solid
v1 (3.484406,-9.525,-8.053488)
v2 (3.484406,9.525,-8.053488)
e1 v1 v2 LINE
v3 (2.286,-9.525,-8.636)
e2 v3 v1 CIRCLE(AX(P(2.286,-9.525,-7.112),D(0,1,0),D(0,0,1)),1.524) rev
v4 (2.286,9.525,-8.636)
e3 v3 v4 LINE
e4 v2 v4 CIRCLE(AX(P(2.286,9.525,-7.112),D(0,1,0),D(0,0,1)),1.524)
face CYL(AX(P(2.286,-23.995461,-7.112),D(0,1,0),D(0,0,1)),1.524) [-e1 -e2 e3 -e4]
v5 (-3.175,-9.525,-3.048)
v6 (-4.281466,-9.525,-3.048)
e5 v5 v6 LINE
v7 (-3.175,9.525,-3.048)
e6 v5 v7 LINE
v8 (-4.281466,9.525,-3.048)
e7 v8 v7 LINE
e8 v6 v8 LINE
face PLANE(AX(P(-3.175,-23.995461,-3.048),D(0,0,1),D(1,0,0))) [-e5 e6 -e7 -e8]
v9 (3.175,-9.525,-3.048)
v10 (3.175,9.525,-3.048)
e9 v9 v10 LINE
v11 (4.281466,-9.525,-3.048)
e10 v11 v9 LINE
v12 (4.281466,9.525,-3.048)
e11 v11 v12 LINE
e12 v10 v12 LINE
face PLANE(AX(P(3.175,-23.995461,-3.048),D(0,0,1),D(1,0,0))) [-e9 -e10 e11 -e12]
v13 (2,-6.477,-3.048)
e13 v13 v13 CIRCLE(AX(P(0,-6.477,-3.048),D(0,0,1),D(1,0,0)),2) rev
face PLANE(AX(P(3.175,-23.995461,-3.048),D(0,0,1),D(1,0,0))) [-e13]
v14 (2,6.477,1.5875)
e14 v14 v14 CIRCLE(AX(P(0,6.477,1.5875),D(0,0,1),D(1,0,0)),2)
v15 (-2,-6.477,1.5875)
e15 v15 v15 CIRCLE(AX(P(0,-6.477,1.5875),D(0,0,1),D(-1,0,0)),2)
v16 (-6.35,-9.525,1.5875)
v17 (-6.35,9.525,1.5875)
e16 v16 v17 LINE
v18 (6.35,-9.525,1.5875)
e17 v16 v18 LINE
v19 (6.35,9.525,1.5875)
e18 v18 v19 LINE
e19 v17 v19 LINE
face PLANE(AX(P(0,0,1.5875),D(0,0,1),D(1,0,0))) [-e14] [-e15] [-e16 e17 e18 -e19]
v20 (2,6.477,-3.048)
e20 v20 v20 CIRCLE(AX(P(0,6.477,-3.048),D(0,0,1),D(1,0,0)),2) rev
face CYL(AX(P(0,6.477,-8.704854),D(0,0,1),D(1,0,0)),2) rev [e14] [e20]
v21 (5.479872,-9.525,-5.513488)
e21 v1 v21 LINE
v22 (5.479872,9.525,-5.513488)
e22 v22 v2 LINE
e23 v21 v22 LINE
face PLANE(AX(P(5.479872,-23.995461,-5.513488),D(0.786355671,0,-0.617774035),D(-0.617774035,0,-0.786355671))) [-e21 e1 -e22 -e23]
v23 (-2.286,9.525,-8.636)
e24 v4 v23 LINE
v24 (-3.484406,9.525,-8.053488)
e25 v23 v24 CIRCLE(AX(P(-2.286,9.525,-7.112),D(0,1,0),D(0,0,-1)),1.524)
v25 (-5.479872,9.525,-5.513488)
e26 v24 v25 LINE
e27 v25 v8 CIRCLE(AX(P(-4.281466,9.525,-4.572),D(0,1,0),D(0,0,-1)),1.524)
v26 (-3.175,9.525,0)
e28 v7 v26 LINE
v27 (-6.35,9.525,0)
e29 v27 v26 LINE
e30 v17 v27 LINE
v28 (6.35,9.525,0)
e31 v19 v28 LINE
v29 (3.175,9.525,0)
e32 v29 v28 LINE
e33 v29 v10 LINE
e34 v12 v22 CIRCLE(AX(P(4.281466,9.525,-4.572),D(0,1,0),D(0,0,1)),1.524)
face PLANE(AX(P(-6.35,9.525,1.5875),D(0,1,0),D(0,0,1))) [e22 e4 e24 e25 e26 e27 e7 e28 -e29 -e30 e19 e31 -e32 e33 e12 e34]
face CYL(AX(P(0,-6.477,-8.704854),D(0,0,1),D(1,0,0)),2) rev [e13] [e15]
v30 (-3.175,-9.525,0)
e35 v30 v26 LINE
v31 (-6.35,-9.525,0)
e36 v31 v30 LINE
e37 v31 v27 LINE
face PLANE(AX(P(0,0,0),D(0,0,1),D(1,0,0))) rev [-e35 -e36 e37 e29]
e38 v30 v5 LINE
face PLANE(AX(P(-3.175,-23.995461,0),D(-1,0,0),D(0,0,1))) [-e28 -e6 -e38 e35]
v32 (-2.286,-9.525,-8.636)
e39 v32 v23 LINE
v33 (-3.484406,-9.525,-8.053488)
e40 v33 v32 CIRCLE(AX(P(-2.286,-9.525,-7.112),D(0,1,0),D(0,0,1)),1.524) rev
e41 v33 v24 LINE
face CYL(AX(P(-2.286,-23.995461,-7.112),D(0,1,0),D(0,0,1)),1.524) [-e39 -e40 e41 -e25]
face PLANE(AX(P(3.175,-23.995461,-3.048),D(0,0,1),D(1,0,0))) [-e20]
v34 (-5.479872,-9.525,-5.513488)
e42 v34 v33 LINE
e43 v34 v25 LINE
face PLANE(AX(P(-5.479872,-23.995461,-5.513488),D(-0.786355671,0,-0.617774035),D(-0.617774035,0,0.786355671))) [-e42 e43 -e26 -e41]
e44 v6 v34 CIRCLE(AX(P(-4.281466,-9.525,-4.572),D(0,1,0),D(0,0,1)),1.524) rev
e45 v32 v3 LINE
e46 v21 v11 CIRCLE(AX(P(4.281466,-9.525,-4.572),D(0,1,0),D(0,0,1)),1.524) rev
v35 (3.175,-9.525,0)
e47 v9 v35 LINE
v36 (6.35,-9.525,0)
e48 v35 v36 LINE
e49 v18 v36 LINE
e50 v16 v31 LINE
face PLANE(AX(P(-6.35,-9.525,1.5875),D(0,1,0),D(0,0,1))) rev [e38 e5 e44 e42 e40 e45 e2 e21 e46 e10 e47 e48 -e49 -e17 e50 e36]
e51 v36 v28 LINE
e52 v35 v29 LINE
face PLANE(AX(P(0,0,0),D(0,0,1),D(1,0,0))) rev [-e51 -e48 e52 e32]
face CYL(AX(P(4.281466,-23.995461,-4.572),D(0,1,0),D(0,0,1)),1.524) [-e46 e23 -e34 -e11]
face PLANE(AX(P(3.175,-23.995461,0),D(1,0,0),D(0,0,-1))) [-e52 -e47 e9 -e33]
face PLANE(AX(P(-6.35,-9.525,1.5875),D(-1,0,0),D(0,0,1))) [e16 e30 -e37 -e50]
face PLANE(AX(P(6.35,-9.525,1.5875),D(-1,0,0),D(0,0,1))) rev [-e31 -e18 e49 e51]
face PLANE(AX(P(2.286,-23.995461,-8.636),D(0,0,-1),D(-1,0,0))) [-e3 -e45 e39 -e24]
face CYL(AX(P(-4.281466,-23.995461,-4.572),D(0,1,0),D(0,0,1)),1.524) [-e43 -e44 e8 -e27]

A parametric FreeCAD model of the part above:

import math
import FreeCAD as App
import Part
import Sketcher

V = App.Vector
Q = App.Units.Quantity


def add_polygon(sketch, points):
    """Adds a closed chain of lines whose ends are joined by coincident constraints."""
    first, n = sketch.GeometryCount, len(points)
    for a, b in zip(points, points[1:] + points[:1]):
        sketch.addGeometry(Part.LineSegment(App.Vector(*a, 0), App.Vector(*b, 0)), False)
    for i in range(n):
        sketch.addConstraint(Sketcher.Constraint("Coincident", first + i, 2, first + (i + 1) % n, 1))

doc = App.newDocument("Part")
body = doc.addObject("PartDesign::Body", "Body")

sketch1 = body.newObject("Sketcher::SketchObject", "Sketch")
sketch1.AttachmentSupport = (doc.getObject("XY_Plane"), [""])
sketch1.MapMode = "FlatFace"
add_polygon(sketch1, [(-6, 10), (-6, -10), (6, -10), (6, 10)])
sketch1.addConstraint([
    Sketcher.Constraint("Vertical", 0),
    Sketcher.Constraint("Horizontal", 1),
    Sketcher.Constraint("Vertical", 2),
    Sketcher.Constraint("Horizontal", 3),
    Sketcher.Constraint("Symmetric", 0, 2, 2, 2, -1, 1),
    Sketcher.Constraint("DistanceX", 1, 1, 1, 2, Q("0.5 in")),
    Sketcher.Constraint("DistanceY", 0, 2, 0, 1, Q("0.75 in")),
])
pad1 = body.newObject("PartDesign::Pad", "Pad")
pad1.Profile = sketch1
pad1.Length = Q("0.0625 in")

sketch2 = body.newObject("Sketcher::SketchObject", "Sketch001")
sketch2.AttachmentSupport = (doc.getObject("XZ_Plane"), [""])
sketch2.MapMode = "FlatFace"
sketch2.AttachmentOffset = App.Placement(V(0, 0, -0.375 * 25.4), App.Rotation())
sketch2.addGeometry([
    Part.LineSegment(V(3.2, 0, 0), V(3.2, -3, 0)),
    Part.LineSegment(V(3.2, -3, 0), V(4.3, -3, 0)),
    Part.ArcOfCircle(Part.Circle(V(4.3, -4.6, 0), V(0, 0, 1), 1.5), math.radians(-38), math.radians(90)),
    Part.LineSegment(V(5.5, -5.5, 0), V(3.5, -8.1, 0)),
    Part.ArcOfCircle(Part.Circle(V(2.3, -7.1, 0), V(0, 0, 1), 1.5), math.radians(-90), math.radians(-38)),
    Part.LineSegment(V(2.3, -8.6, 0), V(-2.3, -8.6, 0)),
    Part.ArcOfCircle(Part.Circle(V(-2.3, -7.1, 0), V(0, 0, 1), 1.5), math.radians(-142), math.radians(-90)),
    Part.LineSegment(V(-3.5, -8.1, 0), V(-5.5, -5.5, 0)),
    Part.ArcOfCircle(Part.Circle(V(-4.3, -4.6, 0), V(0, 0, 1), 1.5), math.radians(90), math.radians(218)),
    Part.LineSegment(V(-4.3, -3, 0), V(-3.2, -3, 0)),
    Part.LineSegment(V(-3.2, -3, 0), V(-3.2, 0, 0)),
    Part.LineSegment(V(-3.2, 0, 0), V(3.2, 0, 0)),
], False)
sketch2.addConstraint([
    Sketcher.Constraint("Coincident", 0, 2, 1, 1),
    Sketcher.Constraint("Tangent", 1, 2, 2, 2),
    Sketcher.Constraint("Tangent", 2, 1, 3, 1),
    Sketcher.Constraint("Tangent", 3, 2, 4, 2),
    Sketcher.Constraint("Tangent", 4, 1, 5, 1),
    Sketcher.Constraint("Tangent", 5, 2, 6, 2),
    Sketcher.Constraint("Tangent", 6, 1, 7, 1),
    Sketcher.Constraint("Tangent", 7, 2, 8, 2),
    Sketcher.Constraint("Tangent", 8, 1, 9, 1),
    Sketcher.Constraint("Coincident", 9, 2, 10, 1),
    Sketcher.Constraint("Coincident", 10, 2, 11, 1),
    Sketcher.Constraint("Coincident", 11, 2, 0, 1),
    Sketcher.Constraint("Vertical", 0),
    Sketcher.Constraint("Horizontal", 1),
    Sketcher.Constraint("Horizontal", 5),
    Sketcher.Constraint("Horizontal", 9),
    Sketcher.Constraint("Vertical", 10),
    Sketcher.Constraint("Horizontal", 11),
    Sketcher.Constraint("Equal", 2, 4),
    Sketcher.Constraint("Equal", 4, 6),
    Sketcher.Constraint("Equal", 6, 8),
    Sketcher.Constraint("Symmetric", 10, 2, 11, 2, -1, 1),
    Sketcher.Constraint("Symmetric", 2, 3, 8, 3, -2),
    Sketcher.Constraint("Horizontal", 3, 2, 6, 1),
    Sketcher.Constraint("Radius", 2, Q("0.06 in")),
    Sketcher.Constraint("DistanceX", 5, 2, 5, 1, Q("0.18 in")),
    Sketcher.Constraint("DistanceX", 11, 1, 11, 2, Q("0.25 in")),
    Sketcher.Constraint("DistanceY", 0, 2, 0, 1, Q("0.12 in")),
    Sketcher.Constraint("DistanceY", 4, 3, 2, 3, Q("0.1 in")),
    Sketcher.Constraint("Distance", 3, Q("3.230091 mm")),
])
pad2 = body.newObject("PartDesign::Pad", "Pad001")
pad2.Profile = sketch2
pad2.Length = Q("0.75 in")

sketch3 = body.newObject("Sketcher::SketchObject", "Sketch002")
sketch3.AttachmentSupport = (doc.getObject("XY_Plane"), [""])
sketch3.MapMode = "FlatFace"
sketch3.AttachmentOffset = App.Placement(V(0, 0, 0.0625 * 25.4), App.Rotation())
sketch3.addGeometry([
    Part.Circle(V(0, 6.5, 0), V(0, 0, 1), 2),
    Part.Circle(V(0, -6.5, 0), V(0, 0, 1), 2),
], False)
sketch3.addConstraint([
    Sketcher.Constraint("Equal", 0, 1),
    Sketcher.Constraint("Symmetric", 0, 3, 1, 3, -1, 1),
    Sketcher.Constraint("PointOnObject", 0, 3, -2),
    Sketcher.Constraint("Diameter", 0, Q("4 mm")),
    Sketcher.Constraint("DistanceY", 1, 3, 0, 3, Q("0.51 in")),
])
pocket1 = body.newObject("PartDesign::Pocket", "Pocket")
pocket1.Profile = sketch3
pocket1.Length = Q("0.1825 in")

doc.recompute()
